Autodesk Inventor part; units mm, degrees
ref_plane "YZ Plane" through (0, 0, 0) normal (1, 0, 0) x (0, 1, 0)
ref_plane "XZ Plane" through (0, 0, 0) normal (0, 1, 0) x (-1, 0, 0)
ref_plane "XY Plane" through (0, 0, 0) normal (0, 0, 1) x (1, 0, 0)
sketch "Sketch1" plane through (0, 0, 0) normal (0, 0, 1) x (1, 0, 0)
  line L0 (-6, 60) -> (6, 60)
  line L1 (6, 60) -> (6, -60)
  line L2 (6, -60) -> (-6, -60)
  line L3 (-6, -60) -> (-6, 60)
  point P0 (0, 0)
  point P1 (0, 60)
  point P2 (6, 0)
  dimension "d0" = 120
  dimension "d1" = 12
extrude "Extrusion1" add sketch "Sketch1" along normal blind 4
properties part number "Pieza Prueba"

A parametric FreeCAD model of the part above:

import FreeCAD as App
import Part
import Sketcher
from FreeCAD import Vector
Q = App.Units.Quantity


def add_polygon(sketch, points):
    """Adds a closed chain of lines whose ends are joined by coincident constraints."""
    first, n = sketch.GeometryCount, len(points)
    for a, b in zip(points, points[1:] + points[:1]):
        sketch.addGeometry(Part.LineSegment(App.Vector(*a, 0), App.Vector(*b, 0)), False)
    for i in range(n):
        sketch.addConstraint(Sketcher.Constraint("Coincident", first + i, 2, first + (i + 1) % n, 1))

doc = App.newDocument("Part")
body = doc.addObject("PartDesign::Body", "Body")

# Sketch on XY plane
sketch1 = body.newObject("Sketcher::SketchObject", "Sketch")
sketch1.AttachmentSupport = (doc.getObject("XY_Plane"), [""])
sketch1.MapMode = "FlatFace"
add_polygon(sketch1, [(6, 60), (-6, 60), (-6, -60), (6, -60)])  # lines 0-3
sketch1.addConstraint(Sketcher.Constraint("Horizontal", 0))
sketch1.addConstraint(Sketcher.Constraint("Vertical", 1))
sketch1.addConstraint(Sketcher.Constraint("Horizontal", 2))
sketch1.addConstraint(Sketcher.Constraint("Vertical", 3))
sketch1.addConstraint(Sketcher.Constraint("Symmetric", 0, 2, 2, 2, -1, 1))
sketch1.addConstraint(Sketcher.Constraint("DistanceX", 0, 2, 0, 1, Q("12 mm")))
sketch1.addConstraint(Sketcher.Constraint("DistanceY", 1, 2, 1, 1, Q("120 mm")))
pad1 = body.newObject("PartDesign::Pad", "Pad")
pad1.Profile = sketch1
pad1.Length = 4

doc.recompute()
